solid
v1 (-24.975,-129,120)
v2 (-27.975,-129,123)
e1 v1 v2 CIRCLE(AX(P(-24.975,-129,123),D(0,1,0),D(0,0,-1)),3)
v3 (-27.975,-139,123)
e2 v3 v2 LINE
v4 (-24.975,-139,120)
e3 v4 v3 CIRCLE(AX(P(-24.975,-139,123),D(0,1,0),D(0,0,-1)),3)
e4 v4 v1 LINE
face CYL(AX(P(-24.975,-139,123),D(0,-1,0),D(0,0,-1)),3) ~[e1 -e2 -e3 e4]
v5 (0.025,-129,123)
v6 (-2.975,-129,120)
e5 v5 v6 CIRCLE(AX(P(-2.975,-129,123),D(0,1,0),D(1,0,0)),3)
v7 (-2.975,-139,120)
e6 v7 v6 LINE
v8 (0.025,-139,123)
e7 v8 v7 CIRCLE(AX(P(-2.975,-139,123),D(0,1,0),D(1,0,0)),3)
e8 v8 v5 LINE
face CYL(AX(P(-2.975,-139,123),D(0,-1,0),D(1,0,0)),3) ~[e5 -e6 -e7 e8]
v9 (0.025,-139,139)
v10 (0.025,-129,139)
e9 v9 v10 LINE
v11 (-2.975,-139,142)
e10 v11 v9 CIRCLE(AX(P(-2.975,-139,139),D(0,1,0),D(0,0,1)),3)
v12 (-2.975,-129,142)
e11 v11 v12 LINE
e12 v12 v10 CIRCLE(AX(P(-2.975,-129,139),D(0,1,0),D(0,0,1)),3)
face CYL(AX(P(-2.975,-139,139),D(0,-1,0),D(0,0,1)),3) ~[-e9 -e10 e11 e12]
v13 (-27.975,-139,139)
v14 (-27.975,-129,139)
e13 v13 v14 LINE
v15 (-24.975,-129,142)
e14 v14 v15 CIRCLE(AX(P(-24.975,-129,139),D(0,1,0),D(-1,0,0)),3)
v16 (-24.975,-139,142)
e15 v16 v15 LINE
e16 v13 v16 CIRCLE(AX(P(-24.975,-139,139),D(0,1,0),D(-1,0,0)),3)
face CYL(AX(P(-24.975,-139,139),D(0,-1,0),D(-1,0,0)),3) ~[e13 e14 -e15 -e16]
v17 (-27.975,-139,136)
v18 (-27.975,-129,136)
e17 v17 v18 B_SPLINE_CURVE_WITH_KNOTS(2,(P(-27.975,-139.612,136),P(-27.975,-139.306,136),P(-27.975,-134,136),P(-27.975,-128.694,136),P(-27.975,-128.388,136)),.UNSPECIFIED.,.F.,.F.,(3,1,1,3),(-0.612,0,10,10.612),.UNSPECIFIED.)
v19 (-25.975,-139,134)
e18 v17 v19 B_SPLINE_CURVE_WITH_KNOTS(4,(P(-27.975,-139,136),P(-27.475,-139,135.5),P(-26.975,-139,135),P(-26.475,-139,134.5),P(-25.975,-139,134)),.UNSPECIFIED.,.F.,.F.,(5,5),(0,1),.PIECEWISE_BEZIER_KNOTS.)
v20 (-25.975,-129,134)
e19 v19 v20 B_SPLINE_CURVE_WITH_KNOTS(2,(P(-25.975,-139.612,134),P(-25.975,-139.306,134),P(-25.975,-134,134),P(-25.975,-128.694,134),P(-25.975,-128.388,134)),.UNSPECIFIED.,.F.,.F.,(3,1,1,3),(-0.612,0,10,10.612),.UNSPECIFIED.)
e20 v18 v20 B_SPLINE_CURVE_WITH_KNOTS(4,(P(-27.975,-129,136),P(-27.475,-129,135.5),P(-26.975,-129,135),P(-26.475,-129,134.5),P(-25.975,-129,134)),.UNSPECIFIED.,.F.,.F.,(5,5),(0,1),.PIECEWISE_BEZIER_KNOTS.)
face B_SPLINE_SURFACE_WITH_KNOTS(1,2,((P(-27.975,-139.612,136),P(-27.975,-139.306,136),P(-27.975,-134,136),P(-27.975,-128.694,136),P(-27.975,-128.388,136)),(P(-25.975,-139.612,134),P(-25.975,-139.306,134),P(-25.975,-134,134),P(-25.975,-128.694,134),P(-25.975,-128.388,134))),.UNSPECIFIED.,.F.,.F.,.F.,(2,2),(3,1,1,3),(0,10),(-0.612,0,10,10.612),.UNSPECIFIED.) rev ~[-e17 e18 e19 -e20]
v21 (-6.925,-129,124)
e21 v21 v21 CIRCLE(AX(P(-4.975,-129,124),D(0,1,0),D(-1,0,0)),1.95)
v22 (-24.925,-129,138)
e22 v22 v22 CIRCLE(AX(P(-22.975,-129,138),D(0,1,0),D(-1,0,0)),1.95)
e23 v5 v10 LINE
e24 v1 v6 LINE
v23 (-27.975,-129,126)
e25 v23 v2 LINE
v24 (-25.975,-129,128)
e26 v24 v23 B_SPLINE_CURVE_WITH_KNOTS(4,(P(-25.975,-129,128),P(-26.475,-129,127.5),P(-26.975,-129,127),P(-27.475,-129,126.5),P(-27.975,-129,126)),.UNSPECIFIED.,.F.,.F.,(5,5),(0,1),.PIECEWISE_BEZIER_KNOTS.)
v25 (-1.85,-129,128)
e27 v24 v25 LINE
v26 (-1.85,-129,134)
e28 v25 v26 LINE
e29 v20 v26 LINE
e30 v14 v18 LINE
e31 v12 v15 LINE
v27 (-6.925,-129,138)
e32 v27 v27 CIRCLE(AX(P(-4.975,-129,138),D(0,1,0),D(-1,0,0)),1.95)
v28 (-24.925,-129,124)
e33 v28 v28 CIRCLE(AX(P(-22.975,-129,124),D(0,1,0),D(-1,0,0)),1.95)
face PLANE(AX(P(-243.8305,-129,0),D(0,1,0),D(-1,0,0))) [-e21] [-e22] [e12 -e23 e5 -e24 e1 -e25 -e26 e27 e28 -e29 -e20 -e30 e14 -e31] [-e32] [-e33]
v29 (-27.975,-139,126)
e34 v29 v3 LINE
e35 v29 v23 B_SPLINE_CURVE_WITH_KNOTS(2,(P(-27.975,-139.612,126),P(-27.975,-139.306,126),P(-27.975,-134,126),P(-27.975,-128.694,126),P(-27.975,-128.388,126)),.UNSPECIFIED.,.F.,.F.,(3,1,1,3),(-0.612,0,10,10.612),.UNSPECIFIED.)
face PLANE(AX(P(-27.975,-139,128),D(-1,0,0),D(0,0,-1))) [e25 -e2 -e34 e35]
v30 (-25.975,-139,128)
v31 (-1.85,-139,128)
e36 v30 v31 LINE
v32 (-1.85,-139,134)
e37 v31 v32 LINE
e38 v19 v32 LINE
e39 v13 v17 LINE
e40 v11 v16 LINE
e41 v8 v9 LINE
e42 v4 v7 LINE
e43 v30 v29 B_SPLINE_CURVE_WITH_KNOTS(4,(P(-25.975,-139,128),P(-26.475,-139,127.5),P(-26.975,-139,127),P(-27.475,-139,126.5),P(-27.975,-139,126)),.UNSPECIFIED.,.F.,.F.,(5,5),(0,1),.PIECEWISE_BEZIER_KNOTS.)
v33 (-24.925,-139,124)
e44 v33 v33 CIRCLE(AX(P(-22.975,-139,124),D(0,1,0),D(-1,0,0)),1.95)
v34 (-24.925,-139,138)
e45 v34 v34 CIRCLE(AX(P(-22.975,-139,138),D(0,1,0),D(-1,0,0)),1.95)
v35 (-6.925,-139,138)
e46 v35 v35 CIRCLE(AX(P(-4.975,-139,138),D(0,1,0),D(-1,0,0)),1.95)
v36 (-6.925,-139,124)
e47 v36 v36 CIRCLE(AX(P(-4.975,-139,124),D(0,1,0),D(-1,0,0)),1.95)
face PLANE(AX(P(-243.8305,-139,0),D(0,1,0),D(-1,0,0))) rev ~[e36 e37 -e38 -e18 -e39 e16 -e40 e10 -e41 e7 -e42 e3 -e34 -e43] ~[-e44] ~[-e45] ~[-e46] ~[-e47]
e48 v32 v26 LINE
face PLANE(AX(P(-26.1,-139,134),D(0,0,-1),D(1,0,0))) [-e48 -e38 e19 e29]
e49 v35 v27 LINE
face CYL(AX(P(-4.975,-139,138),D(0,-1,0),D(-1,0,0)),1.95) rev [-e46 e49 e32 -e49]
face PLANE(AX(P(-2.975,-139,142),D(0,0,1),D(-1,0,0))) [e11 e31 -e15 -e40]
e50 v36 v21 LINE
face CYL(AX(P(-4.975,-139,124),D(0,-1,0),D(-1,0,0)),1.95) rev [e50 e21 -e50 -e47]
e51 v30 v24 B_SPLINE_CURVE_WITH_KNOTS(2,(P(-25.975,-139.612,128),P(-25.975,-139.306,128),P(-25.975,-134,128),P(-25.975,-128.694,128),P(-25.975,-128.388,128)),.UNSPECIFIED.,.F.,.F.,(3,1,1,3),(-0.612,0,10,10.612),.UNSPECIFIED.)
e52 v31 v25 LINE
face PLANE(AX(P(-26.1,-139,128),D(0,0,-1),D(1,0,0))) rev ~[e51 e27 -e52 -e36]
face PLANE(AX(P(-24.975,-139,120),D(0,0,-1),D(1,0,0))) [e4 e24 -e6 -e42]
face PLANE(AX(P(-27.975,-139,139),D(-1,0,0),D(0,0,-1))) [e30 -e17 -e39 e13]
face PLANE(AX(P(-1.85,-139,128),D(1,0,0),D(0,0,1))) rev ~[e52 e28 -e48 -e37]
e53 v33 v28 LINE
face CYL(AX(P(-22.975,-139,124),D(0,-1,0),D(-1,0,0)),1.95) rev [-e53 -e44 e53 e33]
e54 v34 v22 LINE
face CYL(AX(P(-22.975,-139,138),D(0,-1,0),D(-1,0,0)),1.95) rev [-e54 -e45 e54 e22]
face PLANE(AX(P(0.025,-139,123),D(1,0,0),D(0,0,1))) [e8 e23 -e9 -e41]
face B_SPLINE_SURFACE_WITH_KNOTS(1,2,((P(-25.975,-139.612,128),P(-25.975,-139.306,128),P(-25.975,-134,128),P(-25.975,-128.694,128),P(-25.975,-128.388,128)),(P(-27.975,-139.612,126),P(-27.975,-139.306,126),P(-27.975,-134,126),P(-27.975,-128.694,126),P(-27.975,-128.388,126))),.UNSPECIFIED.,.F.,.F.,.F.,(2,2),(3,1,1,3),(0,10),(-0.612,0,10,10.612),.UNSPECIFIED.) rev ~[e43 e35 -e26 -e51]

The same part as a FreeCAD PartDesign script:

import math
import FreeCAD as App
import Part
import Sketcher
from FreeCAD import Vector


def edges_at(feature, points):
    """Names of the edges that pass closest to the given points."""
    edges = feature.Shape.Edges
    near = lambda p: min(range(len(edges)), key=lambda i: edges[i].distToShape(Part.Vertex(*p))[0])
    return sorted({f"Edge{near(p) + 1}" for p in points})

doc = App.newDocument("Part")
body = doc.addObject("PartDesign::Body", "Body")

# Sketch on XZ plane
sketch1 = body.newObject("Sketcher::SketchObject", "Sketch")
sketch1.AttachmentSupport = (doc.getObject("XZ_Plane"), [""])
sketch1.MapMode = "FlatFace"
sketch1.AttachmentOffset = App.Placement(Vector(0, 0, 139), App.Rotation())
sketch1.addGeometry([
    Part.LineSegment(Vector(-28, 128, 0), Vector(-1.9, 128, 0)),  # 0
    Part.LineSegment(Vector(-1.9, 128, 0), Vector(-1.9, 134, 0)),  # 1
    Part.LineSegment(Vector(-1.9, 134, 0), Vector(-28, 134, 0)),  # 2
    Part.LineSegment(Vector(-28, 134, 0), Vector(-28, 139, 0)),  # 3
    Part.ArcOfCircle(Part.Circle(Vector(-25, 139, 0), Vector(0, 0, 1), 3), math.radians(90), math.radians(180)),  # 4
    Part.LineSegment(Vector(-25, 142, 0), Vector(-3, 142, 0)),  # 5
    Part.ArcOfCircle(Part.Circle(Vector(-3, 139, 0), Vector(0, 0, 1), 3), math.radians(0), math.radians(90)),  # 6
    Part.LineSegment(Vector(0, 139, 0), Vector(0, 123, 0)),  # 7
    Part.ArcOfCircle(Part.Circle(Vector(-3, 123, 0), Vector(0, 0, 1), 3), math.radians(-90), math.radians(0)),  # 8
    Part.LineSegment(Vector(-3, 120, 0), Vector(-25, 120, 0)),  # 9
    Part.ArcOfCircle(Part.Circle(Vector(-25, 123, 0), Vector(0, 0, 1), 3), math.radians(180), math.radians(270)),  # 10
    Part.LineSegment(Vector(-28, 123, 0), Vector(-28, 128, 0)),  # 11
    Part.Circle(Vector(-5, 124, 0), Vector(0, 0, 1), 1.9),  # 12
    Part.Circle(Vector(-23, 124, 0), Vector(0, 0, 1), 1.9),  # 13
    Part.Circle(Vector(-5, 138, 0), Vector(0, 0, 1), 1.9),  # 14
    Part.Circle(Vector(-23, 138, 0), Vector(0, 0, 1), 1.9),  # 15
], False)
sketch1.addConstraint([
    Sketcher.Constraint("Coincident", 0, 2, 1, 1),
    Sketcher.Constraint("Coincident", 1, 2, 2, 1),
    Sketcher.Constraint("Coincident", 2, 2, 3, 1),
    Sketcher.Constraint("Tangent", 3, 2, 4, 2),
    Sketcher.Constraint("Tangent", 4, 1, 5, 1),
    Sketcher.Constraint("Tangent", 5, 2, 6, 2),
    Sketcher.Constraint("Tangent", 6, 1, 7, 1),
    Sketcher.Constraint("Tangent", 7, 2, 8, 2),
    Sketcher.Constraint("Tangent", 8, 1, 9, 1),
    Sketcher.Constraint("Tangent", 9, 2, 10, 2),
    Sketcher.Constraint("Tangent", 10, 1, 11, 1),
    Sketcher.Constraint("Coincident", 11, 2, 0, 1),
    Sketcher.Constraint("Horizontal", 0),
    Sketcher.Constraint("Vertical", 1),
    Sketcher.Constraint("Horizontal", 2),
    Sketcher.Constraint("Vertical", 3),
    Sketcher.Constraint("Horizontal", 5),
    Sketcher.Constraint("Vertical", 7),
    Sketcher.Constraint("Horizontal", 9),
    Sketcher.Constraint("Vertical", 11),
    Sketcher.Constraint("Equal", 4, 6),
    Sketcher.Constraint("Equal", 6, 8),
    Sketcher.Constraint("Equal", 8, 10),
    Sketcher.Constraint("Equal", 12, 13),
    Sketcher.Constraint("Equal", 13, 14),
    Sketcher.Constraint("Equal", 14, 15),
    Sketcher.Constraint("Horizontal", 12, 3, 13, 3),
    Sketcher.Constraint("Horizontal", 14, 3, 15, 3),
    Sketcher.Constraint("Vertical", 4, 3, 10, 3),
    Sketcher.Constraint("Vertical", 12, 3, 14, 3),
    Sketcher.Constraint("Vertical", 13, 3, 15, 3),
    Sketcher.Constraint("Equal", 3, 11),
    Sketcher.Constraint("Radius", 4, 3.0),
    Sketcher.Constraint("Diameter", 12, 3.9),
    Sketcher.Constraint("DistanceX", 5, 1, 5, 2, 22.0),
    Sketcher.Constraint("DistanceX", 13, 3, 12, 3, 18.0),
    Sketcher.Constraint("DistanceY", 12, 3, 14, 3, 14.0),
    Sketcher.Constraint("DistanceY", 13, 3, 4, 1, 18.0),
    Sketcher.Constraint("DistanceY", 0, 2, 5, 2, 14.0),
    Sketcher.Constraint("DistanceY", 9, 2, 15, 3, 18.0),
    Sketcher.Constraint("DistanceY", -1, 1, 4, 3, 139.0),
    Sketcher.Constraint("DistanceX", 12, 3, 8, 3, 2.0),
    Sketcher.Constraint("DistanceX", 0, 1, 0, 2, 26.125),
    Sketcher.Constraint("DistanceX", 0, 2, -1, 1, 1.85),
])
pad1 = body.newObject("PartDesign::Pad", "Pad")
pad1.Profile = sketch1
pad1.Length = 10
pad1.Reversed = True
doc.recompute()

chamfer = body.newObject("PartDesign::Chamfer", "Chamfer")
chamfer.Base = (pad1, edges_at(pad1, [(-27.975, -134, 134), (-27.975, -134, 128)]))
chamfer.Size = 2

doc.recompute()
